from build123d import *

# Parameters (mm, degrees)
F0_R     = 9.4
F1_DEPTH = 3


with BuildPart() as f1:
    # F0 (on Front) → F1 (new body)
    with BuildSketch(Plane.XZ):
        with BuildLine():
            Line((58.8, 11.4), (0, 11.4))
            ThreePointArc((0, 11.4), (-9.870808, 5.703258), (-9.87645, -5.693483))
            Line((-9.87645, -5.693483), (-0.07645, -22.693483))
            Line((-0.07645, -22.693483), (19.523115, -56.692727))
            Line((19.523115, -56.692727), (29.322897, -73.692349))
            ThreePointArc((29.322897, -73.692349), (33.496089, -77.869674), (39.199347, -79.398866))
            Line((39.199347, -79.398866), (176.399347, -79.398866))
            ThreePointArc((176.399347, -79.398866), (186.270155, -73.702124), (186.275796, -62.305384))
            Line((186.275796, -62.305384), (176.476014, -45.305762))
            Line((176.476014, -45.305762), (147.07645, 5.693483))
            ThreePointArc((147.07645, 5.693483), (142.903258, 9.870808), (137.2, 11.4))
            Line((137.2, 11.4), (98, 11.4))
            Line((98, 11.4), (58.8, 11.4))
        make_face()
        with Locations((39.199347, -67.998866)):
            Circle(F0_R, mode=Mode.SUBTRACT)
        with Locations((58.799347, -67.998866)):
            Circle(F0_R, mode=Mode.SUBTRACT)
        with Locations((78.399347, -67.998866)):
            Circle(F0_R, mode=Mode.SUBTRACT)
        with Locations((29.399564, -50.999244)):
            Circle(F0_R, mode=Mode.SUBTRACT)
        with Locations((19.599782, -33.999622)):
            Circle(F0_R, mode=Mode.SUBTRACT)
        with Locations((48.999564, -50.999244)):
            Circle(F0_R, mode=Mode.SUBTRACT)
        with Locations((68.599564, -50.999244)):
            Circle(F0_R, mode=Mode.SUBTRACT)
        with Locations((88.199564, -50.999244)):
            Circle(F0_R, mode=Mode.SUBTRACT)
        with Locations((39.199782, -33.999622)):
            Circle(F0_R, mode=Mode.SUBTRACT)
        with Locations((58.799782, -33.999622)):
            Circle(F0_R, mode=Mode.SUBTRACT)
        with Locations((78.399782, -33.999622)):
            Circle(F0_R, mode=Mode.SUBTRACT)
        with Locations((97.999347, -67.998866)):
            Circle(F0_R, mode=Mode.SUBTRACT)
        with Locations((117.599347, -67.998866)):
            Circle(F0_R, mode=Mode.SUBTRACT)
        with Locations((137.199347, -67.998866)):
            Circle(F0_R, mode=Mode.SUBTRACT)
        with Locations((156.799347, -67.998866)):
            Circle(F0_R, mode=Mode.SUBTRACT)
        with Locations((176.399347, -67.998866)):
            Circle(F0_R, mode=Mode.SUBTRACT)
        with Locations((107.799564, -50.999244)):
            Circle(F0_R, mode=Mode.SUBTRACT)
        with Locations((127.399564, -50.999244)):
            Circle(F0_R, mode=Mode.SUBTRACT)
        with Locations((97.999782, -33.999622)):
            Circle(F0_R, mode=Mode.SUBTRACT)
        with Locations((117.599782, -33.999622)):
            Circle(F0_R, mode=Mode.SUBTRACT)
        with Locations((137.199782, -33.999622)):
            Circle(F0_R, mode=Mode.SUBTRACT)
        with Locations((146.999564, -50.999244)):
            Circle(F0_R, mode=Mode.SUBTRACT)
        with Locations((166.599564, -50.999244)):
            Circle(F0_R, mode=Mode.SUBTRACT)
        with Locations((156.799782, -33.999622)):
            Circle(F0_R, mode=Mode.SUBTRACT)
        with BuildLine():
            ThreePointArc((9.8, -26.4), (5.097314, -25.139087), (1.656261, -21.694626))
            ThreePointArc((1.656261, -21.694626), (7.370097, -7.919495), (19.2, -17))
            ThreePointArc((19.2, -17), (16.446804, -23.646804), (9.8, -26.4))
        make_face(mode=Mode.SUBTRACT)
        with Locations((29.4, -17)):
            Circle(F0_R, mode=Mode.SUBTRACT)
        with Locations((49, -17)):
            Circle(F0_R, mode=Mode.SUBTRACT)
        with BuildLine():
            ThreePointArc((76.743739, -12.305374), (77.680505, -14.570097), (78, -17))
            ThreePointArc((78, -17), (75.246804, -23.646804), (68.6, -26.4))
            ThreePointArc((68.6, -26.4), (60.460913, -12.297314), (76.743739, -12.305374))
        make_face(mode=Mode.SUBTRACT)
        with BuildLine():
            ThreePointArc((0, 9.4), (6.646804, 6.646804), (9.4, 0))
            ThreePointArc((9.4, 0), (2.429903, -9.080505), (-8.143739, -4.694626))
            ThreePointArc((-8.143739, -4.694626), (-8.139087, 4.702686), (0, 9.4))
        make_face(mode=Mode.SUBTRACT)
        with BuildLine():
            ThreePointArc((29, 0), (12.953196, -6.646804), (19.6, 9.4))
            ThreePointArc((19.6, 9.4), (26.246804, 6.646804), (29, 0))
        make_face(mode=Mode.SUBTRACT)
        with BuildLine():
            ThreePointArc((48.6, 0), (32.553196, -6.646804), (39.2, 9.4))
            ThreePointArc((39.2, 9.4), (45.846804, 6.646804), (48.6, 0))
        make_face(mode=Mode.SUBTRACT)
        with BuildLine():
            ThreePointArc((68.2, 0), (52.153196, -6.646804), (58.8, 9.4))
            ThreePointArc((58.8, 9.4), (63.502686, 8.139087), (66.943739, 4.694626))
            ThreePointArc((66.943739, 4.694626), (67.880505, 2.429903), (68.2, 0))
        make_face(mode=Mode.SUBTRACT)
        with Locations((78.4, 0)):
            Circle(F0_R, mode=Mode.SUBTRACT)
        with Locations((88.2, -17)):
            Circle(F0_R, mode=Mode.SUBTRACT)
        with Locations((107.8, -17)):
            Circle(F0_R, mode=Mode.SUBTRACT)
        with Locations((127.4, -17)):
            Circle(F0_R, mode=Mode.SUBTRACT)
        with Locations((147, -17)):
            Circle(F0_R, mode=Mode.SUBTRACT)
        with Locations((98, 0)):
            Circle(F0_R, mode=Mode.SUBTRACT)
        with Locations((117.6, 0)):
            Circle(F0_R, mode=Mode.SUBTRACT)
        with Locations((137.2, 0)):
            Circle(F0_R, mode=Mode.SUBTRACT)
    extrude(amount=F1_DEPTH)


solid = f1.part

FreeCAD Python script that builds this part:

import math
import FreeCAD as App
import Part
import Sketcher

V = App.Vector

doc = App.newDocument("Part")
body = doc.addObject("PartDesign::Body", "Body")

# Sketch on XZ plane
sketch1 = body.newObject("Sketcher::SketchObject", "Sketch")
sketch1.AttachmentSupport = (doc.getObject("XZ_Plane"), [""])
sketch1.MapMode = "FlatFace"
sketch1.addGeometry([
    Part.ArcOfCircle(Part.Circle(V(0, 0, 0), V(0, 0, 1), 11.4), math.radians(90), math.radians(210)),  # 0
    Part.LineSegment(V(-9.9, -5.7, 0), V(-0.1, -22.7, 0)),  # 1
    Part.LineSegment(V(-0.1, -22.7, 0), V(19.5, -56.7, 0)),  # 2
    Part.LineSegment(V(19.5, -56.7, 0), V(29.3, -73.7, 0)),  # 3
    Part.ArcOfCircle(Part.Circle(V(39.2, -68, 0), V(0, 0, 1), 11.4), math.radians(-150), math.radians(-90)),  # 4
    Part.LineSegment(V(39.2, -79.4, 0), V(176.4, -79.4, 0)),  # 5
    Part.ArcOfCircle(Part.Circle(V(176.4, -68, 0), V(0, 0, 1), 11.4), math.radians(-90), math.radians(30)),  # 6
    Part.LineSegment(V(186.3, -62.3, 0), V(176.5, -45.3, 0)),  # 7
    Part.LineSegment(V(176.5, -45.3, 0), V(147.1, 5.7, 0)),  # 8
    Part.ArcOfCircle(Part.Circle(V(137.2, 0, 0), V(0, 0, 1), 11.4), math.radians(30), math.radians(90)),  # 9
    Part.LineSegment(V(137.2, 11.4, 0), V(0, 11.4, 0)),  # 10
    Part.Circle(V(39.2, -68, 0), V(0, 0, 1), 9.4),  # 11
    Part.Circle(V(58.8, -68, 0), V(0, 0, 1), 9.4),  # 12
    Part.Circle(V(78.4, -68, 0), V(0, 0, 1), 9.4),  # 13
    Part.Circle(V(29.4, -51, 0), V(0, 0, 1), 9.4),  # 14
    Part.Circle(V(19.6, -34, 0), V(0, 0, 1), 9.4),  # 15
    Part.Circle(V(39.2, -34, 0), V(0, 0, 1), 9.4),  # 16
    Part.Circle(V(49, -51, 0), V(0, 0, 1), 9.4),  # 17
    Part.Circle(V(68.6, -51, 0), V(0, 0, 1), 9.4),  # 18
    Part.Circle(V(88.2, -51, 0), V(0, 0, 1), 9.4),  # 19
    Part.Circle(V(58.8, -34, 0), V(0, 0, 1), 9.4),  # 20
    Part.Circle(V(78.4, -34, 0), V(0, 0, 1), 9.4),  # 21
    Part.Circle(V(98, -68, 0), V(0, 0, 1), 9.4),  # 22
    Part.Circle(V(117.6, -68, 0), V(0, 0, 1), 9.4),  # 23
    Part.Circle(V(137.2, -68, 0), V(0, 0, 1), 9.4),  # 24
    Part.Circle(V(156.8, -68, 0), V(0, 0, 1), 9.4),  # 25
    Part.Circle(V(176.4, -68, 0), V(0, 0, 1), 9.4),  # 26
    Part.Circle(V(107.8, -51, 0), V(0, 0, 1), 9.4),  # 27
    Part.Circle(V(127.4, -51, 0), V(0, 0, 1), 9.4),  # 28
    Part.Circle(V(98, -34, 0), V(0, 0, 1), 9.4),  # 29
    Part.Circle(V(117.6, -34, 0), V(0, 0, 1), 9.4),  # 30
    Part.Circle(V(147, -51, 0), V(0, 0, 1), 9.4),  # 31
    Part.Circle(V(166.6, -51, 0), V(0, 0, 1), 9.4),  # 32
    Part.Circle(V(137.2, -34, 0), V(0, 0, 1), 9.4),  # 33
    Part.Circle(V(156.8, -34, 0), V(0, 0, 1), 9.4),  # 34
    Part.ArcOfCircle(Part.Circle(V(9.8, -17, 0), V(0, 0, 1), 9.4), math.radians(-90), math.radians(0)),  # 35
    Part.ArcOfCircle(Part.Circle(V(9.8, -17, 0), V(0, 0, 1), 9.4), math.radians(-150), math.radians(-90)),  # 36
    Part.ArcOfCircle(Part.Circle(V(9.8, -17, 0), V(0, 0, 1), 9.4), math.radians(0), math.radians(210)),  # 37
    Part.Circle(V(29.4, -17, 0), V(0, 0, 1), 9.4),  # 38
    Part.Circle(V(49, -17, 0), V(0, 0, 1), 9.4),  # 39
    Part.ArcOfCircle(Part.Circle(V(68.6, -17, 0), V(0, 0, 1), 9.4), math.radians(30), math.radians(270)),  # 40
    Part.ArcOfCircle(Part.Circle(V(68.6, -17, 0), V(0, 0, 1), 9.4), math.radians(0), math.radians(30)),  # 41
    Part.ArcOfCircle(Part.Circle(V(68.6, -17, 0), V(0, 0, 1), 9.4), math.radians(-90), math.radians(0)),  # 42
    Part.ArcOfCircle(Part.Circle(V(0, 0, 0), V(0, 0, 1), 9.4), math.radians(90), math.radians(210)),  # 43
    Part.ArcOfCircle(Part.Circle(V(0, 0, 0), V(0, 0, 1), 9.4), math.radians(0), math.radians(90)),  # 44
    Part.ArcOfCircle(Part.Circle(V(0, 0, 0), V(0, 0, 1), 9.4), math.radians(-150), math.radians(0)),  # 45
    Part.ArcOfCircle(Part.Circle(V(19.6, 0, 0), V(0, 0, 1), 9.4), math.radians(0), math.radians(90)),  # 46
    Part.ArcOfCircle(Part.Circle(V(19.6, 0, 0), V(0, 0, 1), 9.4), math.radians(90), math.radians(360)),  # 47
    Part.ArcOfCircle(Part.Circle(V(39.2, 0, 0), V(0, 0, 1), 9.4), math.radians(0), math.radians(90)),  # 48
    Part.ArcOfCircle(Part.Circle(V(39.2, 0, 0), V(0, 0, 1), 9.4), math.radians(90), math.radians(360)),  # 49
    Part.ArcOfCircle(Part.Circle(V(58.8, 0, 0), V(0, 0, 1), 9.4), math.radians(0), math.radians(30)),  # 50
    Part.ArcOfCircle(Part.Circle(V(58.8, 0, 0), V(0, 0, 1), 9.4), math.radians(90), math.radians(360)),  # 51
    Part.ArcOfCircle(Part.Circle(V(58.8, 0, 0), V(0, 0, 1), 9.4), math.radians(30), math.radians(90)),  # 52
    Part.Circle(V(78.4, 0, 0), V(0, 0, 1), 9.4),  # 53
    Part.Circle(V(88.2, -17, 0), V(0, 0, 1), 9.4),  # 54
    Part.Circle(V(107.8, -17, 0), V(0, 0, 1), 9.4),  # 55
    Part.Circle(V(127.4, -17, 0), V(0, 0, 1), 9.4),  # 56
    Part.Circle(V(147, -17, 0), V(0, 0, 1), 9.4),  # 57
    Part.Circle(V(98, 0, 0), V(0, 0, 1), 9.4),  # 58
    Part.Circle(V(117.6, 0, 0), V(0, 0, 1), 9.4),  # 59
    Part.Circle(V(137.2, 0, 0), V(0, 0, 1), 9.4),  # 60
], False)
sketch1.addConstraint([
    Sketcher.Constraint("Tangent", 0, 2, 1, 1),
    Sketcher.Constraint("Coincident", 1, 2, 2, 1),
    Sketcher.Constraint("Coincident", 2, 2, 3, 1),
    Sketcher.Constraint("Tangent", 3, 2, 4, 1),
    Sketcher.Constraint("Tangent", 4, 2, 5, 1),
    Sketcher.Constraint("Tangent", 5, 2, 6, 1),
    Sketcher.Constraint("Tangent", 6, 2, 7, 1),
    Sketcher.Constraint("Coincident", 7, 2, 8, 1),
    Sketcher.Constraint("Tangent", 8, 2, 9, 1),
    Sketcher.Constraint("Tangent", 9, 2, 10, 1),
    Sketcher.Constraint("Tangent", 10, 2, 0, 1),
    Sketcher.Constraint("Tangent", 35, 1, 36, 2),
    Sketcher.Constraint("Tangent", 36, 1, 37, 2),
    Sketcher.Constraint("Tangent", 37, 1, 35, 2),
    Sketcher.Constraint("Tangent", 40, 1, 41, 2),
    Sketcher.Constraint("Tangent", 41, 1, 42, 2),
    Sketcher.Constraint("Tangent", 42, 1, 40, 2),
    Sketcher.Constraint("Tangent", 43, 1, 44, 2),
    Sketcher.Constraint("Tangent", 44, 1, 45, 2),
    Sketcher.Constraint("Tangent", 45, 1, 43, 2),
    Sketcher.Constraint("Tangent", 46, 1, 47, 2),
    Sketcher.Constraint("Coincident", 47, 1, 46, 2),
    Sketcher.Constraint("Tangent", 48, 1, 49, 2),
    Sketcher.Constraint("Coincident", 49, 1, 48, 2),
    Sketcher.Constraint("Tangent", 50, 1, 51, 2),
    Sketcher.Constraint("Tangent", 51, 1, 52, 2),
    Sketcher.Constraint("Tangent", 52, 1, 50, 2),
    Sketcher.Constraint("Horizontal", 5),
    Sketcher.Constraint("Horizontal", 10),
    Sketcher.Constraint("Coincident", 0, 3, -1, 1),
    Sketcher.Constraint("Coincident", 43, 3, -1, 1),
    Sketcher.Constraint("Coincident", 11, 3, 4, 3),
    Sketcher.Constraint("Coincident", 26, 3, 6, 3),
    Sketcher.Constraint("Coincident", 60, 3, 9, 3),
    Sketcher.Constraint("Equal", 0, 4),
    Sketcher.Constraint("Equal", 0, 6),
    Sketcher.Constraint("Equal", 4, 9),
    Sketcher.Constraint("Equal", 11, 12),
    Sketcher.Constraint("Equal", 12, 13),
    Sketcher.Constraint("Equal", 13, 14),
    Sketcher.Constraint("Equal", 14, 15),
    Sketcher.Constraint("Equal", 15, 16),
    Sketcher.Constraint("Equal", 16, 17),
    Sketcher.Constraint("Equal", 17, 18),
    Sketcher.Constraint("Equal", 18, 19),
    Sketcher.Constraint("Equal", 19, 20),
    Sketcher.Constraint("Equal", 20, 21),
    Sketcher.Constraint("Equal", 21, 22),
    Sketcher.Constraint("Equal", 22, 23),
    Sketcher.Constraint("Equal", 23, 24),
    Sketcher.Constraint("Equal", 24, 25),
    Sketcher.Constraint("Equal", 25, 26),
    Sketcher.Constraint("Equal", 26, 27),
    Sketcher.Constraint("Equal", 27, 28),
    Sketcher.Constraint("Equal", 28, 29),
    Sketcher.Constraint("Equal", 29, 30),
    Sketcher.Constraint("Equal", 30, 31),
    Sketcher.Constraint("Equal", 31, 32),
    Sketcher.Constraint("Equal", 32, 33),
    Sketcher.Constraint("Equal", 33, 34),
    Sketcher.Constraint("Equal", 34, 35),
    Sketcher.Constraint("Equal", 37, 38),
    Sketcher.Constraint("Equal", 38, 39),
    Sketcher.Constraint("Equal", 39, 40),
    Sketcher.Constraint("Equal", 42, 43),
    Sketcher.Constraint("Equal", 45, 46),
    Sketcher.Constraint("Equal", 47, 48),
    Sketcher.Constraint("Equal", 49, 50),
    Sketcher.Constraint("Equal", 51, 53),
    Sketcher.Constraint("Equal", 53, 54),
    Sketcher.Constraint("Equal", 54, 55),
    Sketcher.Constraint("Equal", 55, 56),
    Sketcher.Constraint("Equal", 56, 57),
    Sketcher.Constraint("Equal", 57, 58),
    Sketcher.Constraint("Equal", 58, 59),
    Sketcher.Constraint("Equal", 59, 60),
    Sketcher.Constraint("PointOnObject", 46, 3, -1),
    Sketcher.Constraint("PointOnObject", 48, 3, -1),
    Sketcher.Constraint("PointOnObject", 50, 3, -1),
    Sketcher.Constraint("PointOnObject", 53, 3, -1),
    Sketcher.Constraint("PointOnObject", 58, 3, -1),
    Sketcher.Constraint("PointOnObject", 59, 3, -1),
    Sketcher.Constraint("PointOnObject", 43, 1, -2),
    Sketcher.Constraint("PointOnObject", 44, 1, -1),
    Sketcher.Constraint("PointOnObject", 46, 1, -1),
    Sketcher.Constraint("PointOnObject", 48, 1, -1),
    Sketcher.Constraint("PointOnObject", 50, 1, -1),
    Sketcher.Constraint("Parallel", 1, 2),
    Sketcher.Constraint("Parallel", 2, 3),
    Sketcher.Constraint("Parallel", 3, 7),
    Sketcher.Constraint("Parallel", 7, 8),
    Sketcher.Constraint("Horizontal", 11, 3, 12, 3),
    Sketcher.Constraint("Horizontal", 12, 3, 13, 3),
    Sketcher.Constraint("Horizontal", 15, 3, 16, 3),
    Sketcher.Constraint("Horizontal", 14, 3, 17, 3),
    Sketcher.Constraint("Horizontal", 17, 3, 18, 3),
    Sketcher.Constraint("Horizontal", 18, 3, 19, 3),
    Sketcher.Constraint("Horizontal", 16, 3, 20, 3),
    Sketcher.Constraint("Horizontal", 20, 3, 21, 3),
    Sketcher.Constraint("Horizontal", 13, 3, 22, 3),
    Sketcher.Constraint("Horizontal", 22, 3, 23, 3),
    Sketcher.Constraint("Horizontal", 23, 3, 24, 3),
    Sketcher.Constraint("Horizontal", 24, 3, 25, 3),
    Sketcher.Constraint("Horizontal", 19, 3, 27, 3),
    Sketcher.Constraint("Horizontal", 27, 3, 28, 3),
    Sketcher.Constraint("Horizontal", 21, 3, 29, 3),
    Sketcher.Constraint("Horizontal", 29, 3, 30, 3),
    Sketcher.Constraint("Horizontal", 28, 3, 31, 3),
    Sketcher.Constraint("Horizontal", 31, 3, 32, 3),
    Sketcher.Constraint("Horizontal", 30, 3, 33, 3),
    Sketcher.Constraint("Horizontal", 33, 3, 34, 3),
    Sketcher.Constraint("Horizontal", 37, 3, 38, 3),
    Sketcher.Constraint("Horizontal", 38, 3, 39, 3),
    Sketcher.Constraint("Horizontal", 39, 3, 40, 3),
    Sketcher.Constraint("Horizontal", 42, 3, 54, 3),
    Sketcher.Constraint("Horizontal", 54, 3, 55, 3),
    Sketcher.Constraint("Horizontal", 55, 3, 56, 3),
    Sketcher.Constraint("Horizontal", 56, 3, 57, 3),
    Sketcher.Constraint("Horizontal", 57, 3, 37, 1),
    Sketcher.Constraint("Horizontal", 37, 1, 41, 1),
    Sketcher.Constraint("Vertical", 37, 3, 35, 1),
    Sketcher.Constraint("Vertical", 41, 3, 42, 1),
    Sketcher.Constraint("Vertical", 46, 3, 47, 1),
    Sketcher.Constraint("Vertical", 48, 3, 49, 1),
    Sketcher.Constraint("Vertical", 52, 3, 51, 1),
    Sketcher.Constraint("Equal", 3, 7),
    Sketcher.Constraint("Diameter", 11, 18.8),
    Sketcher.Constraint("Radius", 0, 11.4),
    Sketcher.Constraint("DistanceX", 5, 1, 5, 2, 137.2),
    Sketcher.Constraint("DistanceY", 35, 3, -1, 1, 17.000001),
    Sketcher.Constraint("DistanceX", -1, 1, 39, 3, 49.0),
    Sketcher.Constraint("DistanceX", -1, 1, 57, 3, 147.0),
    Sketcher.Constraint("DistanceX", -1, 1, 58, 3, 98.0),
    Sketcher.Constraint("DistanceX", -1, 1, 41, 1, 78.0),
    Sketcher.Constraint("DistanceX", -1, 1, 46, 1, 29.0),
    Sketcher.Constraint("DistanceX", -1, 1, 35, 3, 9.800001),
    Sketcher.Constraint("DistanceX", -1, 1, 38, 3, 29.4),
    Sketcher.Constraint("DistanceX", -1, 1, 48, 3, 39.200001),
    Sketcher.Constraint("DistanceX", -1, 1, 50, 3, 58.800001),
    Sketcher.Constraint("DistanceX", -1, 1, 53, 3, 78.4),
    Sketcher.Constraint("DistanceX", -1, 1, 54, 3, 88.2),
    Sketcher.Constraint("DistanceX", -1, 1, 55, 3, 107.8),
    Sketcher.Constraint("DistanceX", -1, 1, 56, 3, 127.4),
    Sketcher.Constraint("DistanceX", -1, 1, 59, 3, 117.6),
    Sketcher.Constraint("Distance", 2, 39.244),
    Sketcher.Constraint("Distance", 3, 19.622),
    Sketcher.Constraint("DistanceX", -1, 1, 21, 3, 78.399782),
    Sketcher.Constraint("DistanceX", -1, 1, 29, 3, 97.999782),
    Sketcher.Constraint("DistanceX", -1, 1, 33, 3, 137.199782),
    Sketcher.Constraint("DistanceX", -1, 1, 34, 3, 156.799782),
    Sketcher.Constraint("DistanceX", 0, 2, -1, 1, 9.87645),
    Sketcher.Constraint("DistanceX", 1, 2, -1, 1, 0.07645),
    Sketcher.Constraint("DistanceX", -1, 1, 36, 1, 1.656261),
    Sketcher.Constraint("DistanceX", -1, 1, 40, 1, 76.743739),
    Sketcher.Constraint("DistanceX", 45, 1, -1, 1, 8.143739),
    Sketcher.Constraint("DistanceX", -1, 1, 52, 1, 66.943739),
    Sketcher.Constraint("DistanceX", -1, 1, 12, 3, 58.799347),
    Sketcher.Constraint("DistanceX", -1, 1, 13, 3, 78.399347),
    Sketcher.Constraint("DistanceX", -1, 1, 14, 3, 29.399564),
    Sketcher.Constraint("DistanceY", 14, 3, -1, 1, 50.999244),
    Sketcher.Constraint("DistanceX", -1, 1, 15, 3, 19.599782),
    Sketcher.Constraint("DistanceY", 15, 3, -1, 1, 33.999622),
    Sketcher.Constraint("DistanceX", -1, 1, 16, 3, 39.199782),
    Sketcher.Constraint("DistanceX", -1, 1, 17, 3, 48.999564),
    Sketcher.Constraint("DistanceX", -1, 1, 18, 3, 68.599564),
    Sketcher.Constraint("DistanceX", -1, 1, 19, 3, 88.199564),
    Sketcher.Constraint("DistanceX", -1, 1, 20, 3, 58.799782),
    Sketcher.Constraint("DistanceX", -1, 1, 22, 3, 97.999347),
    Sketcher.Constraint("DistanceX", -1, 1, 23, 3, 117.599347),
    Sketcher.Constraint("DistanceX", -1, 1, 24, 3, 137.199347),
    Sketcher.Constraint("DistanceX", -1, 1, 25, 3, 156.799347),
    Sketcher.Constraint("DistanceX", -1, 1, 27, 3, 107.799564),
    Sketcher.Constraint("DistanceX", -1, 1, 28, 3, 127.399564),
    Sketcher.Constraint("DistanceX", -1, 1, 30, 3, 117.599782),
    Sketcher.Constraint("DistanceX", -1, 1, 31, 3, 146.999564),
    Sketcher.Constraint("DistanceX", -1, 1, 32, 3, 166.599564),
])
pad1 = body.newObject("PartDesign::Pad", "Pad")
pad1.Profile = sketch1
pad1.Length = 3

doc.recompute()
